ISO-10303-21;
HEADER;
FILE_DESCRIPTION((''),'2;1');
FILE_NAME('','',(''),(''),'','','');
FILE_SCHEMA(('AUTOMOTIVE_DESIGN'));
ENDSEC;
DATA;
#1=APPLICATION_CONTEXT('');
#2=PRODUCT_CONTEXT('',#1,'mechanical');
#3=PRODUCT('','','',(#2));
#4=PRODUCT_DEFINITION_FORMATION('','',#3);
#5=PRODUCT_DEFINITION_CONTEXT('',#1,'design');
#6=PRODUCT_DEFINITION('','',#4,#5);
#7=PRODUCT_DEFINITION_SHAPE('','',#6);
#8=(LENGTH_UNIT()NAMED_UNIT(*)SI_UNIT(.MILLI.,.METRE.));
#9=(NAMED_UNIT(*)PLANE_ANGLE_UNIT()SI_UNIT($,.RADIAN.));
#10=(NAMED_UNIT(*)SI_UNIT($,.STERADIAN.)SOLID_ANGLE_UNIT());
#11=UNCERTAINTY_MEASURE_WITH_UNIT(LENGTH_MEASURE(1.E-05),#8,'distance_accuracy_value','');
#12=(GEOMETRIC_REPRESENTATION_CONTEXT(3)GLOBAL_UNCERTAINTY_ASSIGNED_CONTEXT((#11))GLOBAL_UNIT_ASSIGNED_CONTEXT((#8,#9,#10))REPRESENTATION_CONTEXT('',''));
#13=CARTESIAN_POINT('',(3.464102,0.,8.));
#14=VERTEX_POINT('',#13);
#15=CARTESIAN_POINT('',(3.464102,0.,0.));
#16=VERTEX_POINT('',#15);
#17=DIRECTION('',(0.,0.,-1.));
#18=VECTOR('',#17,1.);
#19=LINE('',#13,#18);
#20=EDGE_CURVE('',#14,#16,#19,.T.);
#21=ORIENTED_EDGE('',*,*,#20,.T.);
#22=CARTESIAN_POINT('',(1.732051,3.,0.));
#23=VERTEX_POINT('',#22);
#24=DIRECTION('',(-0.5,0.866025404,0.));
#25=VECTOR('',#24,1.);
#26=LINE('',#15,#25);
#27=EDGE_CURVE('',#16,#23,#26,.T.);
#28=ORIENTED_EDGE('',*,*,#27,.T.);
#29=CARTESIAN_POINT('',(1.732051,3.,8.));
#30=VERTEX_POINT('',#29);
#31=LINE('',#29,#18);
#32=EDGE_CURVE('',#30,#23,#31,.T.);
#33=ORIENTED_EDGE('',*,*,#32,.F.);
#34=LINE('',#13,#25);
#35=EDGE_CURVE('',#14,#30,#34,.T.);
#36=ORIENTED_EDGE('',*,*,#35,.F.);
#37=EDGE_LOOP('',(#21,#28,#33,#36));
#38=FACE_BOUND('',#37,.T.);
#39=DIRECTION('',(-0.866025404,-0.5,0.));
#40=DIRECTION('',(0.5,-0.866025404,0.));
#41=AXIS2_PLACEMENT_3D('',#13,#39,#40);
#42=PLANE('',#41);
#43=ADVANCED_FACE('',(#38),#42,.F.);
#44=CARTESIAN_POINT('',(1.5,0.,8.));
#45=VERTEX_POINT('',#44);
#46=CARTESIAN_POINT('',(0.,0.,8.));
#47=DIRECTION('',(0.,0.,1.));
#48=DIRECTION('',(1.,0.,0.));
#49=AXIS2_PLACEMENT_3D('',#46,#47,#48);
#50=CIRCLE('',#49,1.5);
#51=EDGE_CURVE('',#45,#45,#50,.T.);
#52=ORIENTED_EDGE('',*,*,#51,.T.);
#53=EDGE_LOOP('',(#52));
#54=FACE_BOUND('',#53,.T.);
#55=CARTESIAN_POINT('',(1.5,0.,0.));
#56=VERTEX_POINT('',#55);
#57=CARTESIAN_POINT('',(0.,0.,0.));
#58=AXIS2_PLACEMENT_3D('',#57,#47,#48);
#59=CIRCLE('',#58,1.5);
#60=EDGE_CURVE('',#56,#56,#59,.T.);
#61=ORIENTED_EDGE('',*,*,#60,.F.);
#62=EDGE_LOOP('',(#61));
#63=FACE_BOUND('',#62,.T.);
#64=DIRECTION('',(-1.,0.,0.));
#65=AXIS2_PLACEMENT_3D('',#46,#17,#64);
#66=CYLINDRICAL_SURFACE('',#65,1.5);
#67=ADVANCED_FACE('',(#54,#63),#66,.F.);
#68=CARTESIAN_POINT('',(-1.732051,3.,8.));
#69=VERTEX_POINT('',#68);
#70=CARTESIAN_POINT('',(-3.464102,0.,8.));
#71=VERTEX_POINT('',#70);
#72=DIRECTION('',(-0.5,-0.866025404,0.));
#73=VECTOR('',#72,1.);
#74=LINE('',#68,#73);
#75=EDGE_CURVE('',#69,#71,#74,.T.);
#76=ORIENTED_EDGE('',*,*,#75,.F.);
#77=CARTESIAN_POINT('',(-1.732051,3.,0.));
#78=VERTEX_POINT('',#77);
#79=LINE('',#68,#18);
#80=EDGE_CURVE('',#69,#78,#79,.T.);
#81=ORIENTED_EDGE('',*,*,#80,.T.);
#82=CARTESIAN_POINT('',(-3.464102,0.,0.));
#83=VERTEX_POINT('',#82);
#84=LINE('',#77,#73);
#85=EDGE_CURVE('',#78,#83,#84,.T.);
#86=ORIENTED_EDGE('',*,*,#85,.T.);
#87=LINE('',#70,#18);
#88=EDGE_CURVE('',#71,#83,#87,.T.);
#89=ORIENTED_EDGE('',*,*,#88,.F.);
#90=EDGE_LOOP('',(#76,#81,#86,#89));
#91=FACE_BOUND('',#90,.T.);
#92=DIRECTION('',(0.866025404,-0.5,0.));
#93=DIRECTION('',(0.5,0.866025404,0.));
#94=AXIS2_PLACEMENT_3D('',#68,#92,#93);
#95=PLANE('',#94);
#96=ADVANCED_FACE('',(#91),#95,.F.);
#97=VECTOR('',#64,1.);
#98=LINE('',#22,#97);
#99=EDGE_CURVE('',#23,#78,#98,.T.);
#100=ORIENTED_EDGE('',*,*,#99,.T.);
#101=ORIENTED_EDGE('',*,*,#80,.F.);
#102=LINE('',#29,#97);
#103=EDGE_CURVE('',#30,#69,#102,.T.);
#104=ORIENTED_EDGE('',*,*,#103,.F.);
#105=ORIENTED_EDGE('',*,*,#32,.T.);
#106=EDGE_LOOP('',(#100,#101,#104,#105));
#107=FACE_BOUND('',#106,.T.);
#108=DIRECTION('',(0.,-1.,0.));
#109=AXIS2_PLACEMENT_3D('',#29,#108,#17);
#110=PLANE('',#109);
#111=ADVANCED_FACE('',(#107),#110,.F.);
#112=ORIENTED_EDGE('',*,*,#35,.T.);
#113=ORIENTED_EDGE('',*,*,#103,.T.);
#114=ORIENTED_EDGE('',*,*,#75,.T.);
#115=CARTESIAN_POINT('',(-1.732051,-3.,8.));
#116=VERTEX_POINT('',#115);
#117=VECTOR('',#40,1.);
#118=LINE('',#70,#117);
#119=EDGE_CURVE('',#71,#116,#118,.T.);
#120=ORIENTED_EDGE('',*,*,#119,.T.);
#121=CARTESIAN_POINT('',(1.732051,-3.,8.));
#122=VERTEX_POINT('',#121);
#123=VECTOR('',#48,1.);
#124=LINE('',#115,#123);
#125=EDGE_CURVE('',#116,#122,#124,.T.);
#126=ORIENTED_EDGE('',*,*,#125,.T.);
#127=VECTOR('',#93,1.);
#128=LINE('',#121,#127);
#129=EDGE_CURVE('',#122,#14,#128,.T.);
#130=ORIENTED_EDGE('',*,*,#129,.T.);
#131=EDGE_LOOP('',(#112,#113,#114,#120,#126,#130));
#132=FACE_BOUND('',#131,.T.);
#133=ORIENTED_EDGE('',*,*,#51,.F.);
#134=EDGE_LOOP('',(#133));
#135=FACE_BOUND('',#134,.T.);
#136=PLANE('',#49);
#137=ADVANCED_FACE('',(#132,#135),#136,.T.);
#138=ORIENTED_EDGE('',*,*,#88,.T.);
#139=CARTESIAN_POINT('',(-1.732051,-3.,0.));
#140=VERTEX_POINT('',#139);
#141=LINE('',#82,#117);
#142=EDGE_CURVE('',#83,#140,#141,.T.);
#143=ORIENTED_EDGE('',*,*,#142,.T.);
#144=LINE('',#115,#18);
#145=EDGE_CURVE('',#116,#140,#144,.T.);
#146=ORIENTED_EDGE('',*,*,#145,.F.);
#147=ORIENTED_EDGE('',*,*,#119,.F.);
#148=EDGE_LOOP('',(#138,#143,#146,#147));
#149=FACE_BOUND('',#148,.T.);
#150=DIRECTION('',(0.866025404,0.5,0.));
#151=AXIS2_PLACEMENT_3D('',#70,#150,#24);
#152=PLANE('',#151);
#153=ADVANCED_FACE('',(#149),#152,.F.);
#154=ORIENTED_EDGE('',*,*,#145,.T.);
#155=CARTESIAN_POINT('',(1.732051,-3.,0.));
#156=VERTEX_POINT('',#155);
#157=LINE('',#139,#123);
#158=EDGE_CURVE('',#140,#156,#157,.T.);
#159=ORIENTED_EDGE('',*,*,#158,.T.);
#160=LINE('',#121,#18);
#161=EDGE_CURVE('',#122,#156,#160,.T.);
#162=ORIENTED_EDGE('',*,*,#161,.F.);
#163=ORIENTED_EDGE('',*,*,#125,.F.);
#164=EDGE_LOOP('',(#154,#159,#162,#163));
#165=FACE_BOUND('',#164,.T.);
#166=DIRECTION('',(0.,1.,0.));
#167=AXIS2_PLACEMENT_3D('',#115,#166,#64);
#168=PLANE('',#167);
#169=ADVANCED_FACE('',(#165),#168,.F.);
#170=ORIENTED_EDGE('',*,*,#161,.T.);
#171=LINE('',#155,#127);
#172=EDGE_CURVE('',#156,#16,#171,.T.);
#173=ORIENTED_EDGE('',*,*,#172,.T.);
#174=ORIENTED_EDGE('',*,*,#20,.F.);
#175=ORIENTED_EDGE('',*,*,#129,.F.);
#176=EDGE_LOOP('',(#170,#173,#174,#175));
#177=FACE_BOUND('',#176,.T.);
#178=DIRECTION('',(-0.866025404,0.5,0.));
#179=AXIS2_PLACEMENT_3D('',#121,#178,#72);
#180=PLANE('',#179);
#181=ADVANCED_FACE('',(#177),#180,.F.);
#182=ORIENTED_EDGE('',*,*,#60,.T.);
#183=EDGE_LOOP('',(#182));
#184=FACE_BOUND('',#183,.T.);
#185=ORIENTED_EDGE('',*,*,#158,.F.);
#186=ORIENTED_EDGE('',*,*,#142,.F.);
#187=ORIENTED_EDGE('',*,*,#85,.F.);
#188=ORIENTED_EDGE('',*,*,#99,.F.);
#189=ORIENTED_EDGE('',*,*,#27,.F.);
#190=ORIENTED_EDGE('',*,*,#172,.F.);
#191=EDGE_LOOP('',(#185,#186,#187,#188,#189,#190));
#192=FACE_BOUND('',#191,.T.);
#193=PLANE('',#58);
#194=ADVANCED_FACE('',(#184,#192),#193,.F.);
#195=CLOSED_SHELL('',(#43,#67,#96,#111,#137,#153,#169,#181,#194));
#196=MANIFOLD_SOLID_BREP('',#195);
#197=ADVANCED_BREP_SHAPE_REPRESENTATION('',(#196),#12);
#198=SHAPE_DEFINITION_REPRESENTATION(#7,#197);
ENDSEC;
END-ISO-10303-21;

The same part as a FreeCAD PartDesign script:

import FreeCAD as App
import Part
import Sketcher

V = App.Vector
Q = App.Units.Quantity


def add_polygon(sketch, points):
    """Adds a closed chain of lines whose ends are joined by coincident constraints."""
    first, n = sketch.GeometryCount, len(points)
    for a, b in zip(points, points[1:] + points[:1]):
        sketch.addGeometry(Part.LineSegment(App.Vector(*a, 0), App.Vector(*b, 0)), False)
    for i in range(n):
        sketch.addConstraint(Sketcher.Constraint("Coincident", first + i, 2, first + (i + 1) % n, 1))

doc = App.newDocument("Part")
params = doc.addObject("Spreadsheet::Sheet", "Params")
for row, (alias, value) in enumerate([
    ("sketch1_diameter", "3 mm"),
    ("pad1_length", "8 mm"),
], start=1):
    params.set(f"A{row}", alias)
    params.set(f"B{row}", "=" + value)
    params.setAlias(f"B{row}", alias)

body = doc.addObject("PartDesign::Body", "Body")

# Sketch on XY plane
sketch1 = body.newObject("Sketcher::SketchObject", "Sketch")
sketch1.AttachmentSupport = (doc.getObject("XY_Plane"), [""])
sketch1.MapMode = "FlatFace"
add_polygon(sketch1, [(1.7, 3), (-1.7, 3), (-3.5, 0), (-1.7, -3), (1.7, -3), (3.5, 0)])  # lines 0-5
sketch1.addGeometry(Part.Circle(V(0, 0, 0), V(0, 0, 1), 1.5), False)  # 6
sketch1.addConstraint([
    Sketcher.Constraint("Horizontal", 0),
    Sketcher.Constraint("Horizontal", 3),
    Sketcher.Constraint("Coincident", 6, 3, -1, 1),
    Sketcher.Constraint("Symmetric", 0, 2, 3, 2, -1, 1),
    Sketcher.Constraint("Symmetric", 1, 2, 4, 2, -1, 1),
    Sketcher.Constraint("PointOnObject", 1, 2, -1),
    Sketcher.Constraint("Parallel", 2, 5),
    Sketcher.Constraint("Vertical", 0, 2, 2, 2),
    Sketcher.Constraint("Diameter", 6, 3.0),
    Sketcher.Constraint("Angle", 1, Q("-120 deg")),
    Sketcher.Constraint("DistanceY", -1, 1, 0, 2, 3.0),
    Sketcher.Constraint("DistanceX", 0, 2, 0, 1, 3.464102),
])
sketch1.setExpression("Constraints[14]", "Params.sketch1_diameter")
pad1 = body.newObject("PartDesign::Pad", "Pad")
pad1.Profile = sketch1
pad1.setExpression("Length", "Params.pad1_length")

doc.recompute()
